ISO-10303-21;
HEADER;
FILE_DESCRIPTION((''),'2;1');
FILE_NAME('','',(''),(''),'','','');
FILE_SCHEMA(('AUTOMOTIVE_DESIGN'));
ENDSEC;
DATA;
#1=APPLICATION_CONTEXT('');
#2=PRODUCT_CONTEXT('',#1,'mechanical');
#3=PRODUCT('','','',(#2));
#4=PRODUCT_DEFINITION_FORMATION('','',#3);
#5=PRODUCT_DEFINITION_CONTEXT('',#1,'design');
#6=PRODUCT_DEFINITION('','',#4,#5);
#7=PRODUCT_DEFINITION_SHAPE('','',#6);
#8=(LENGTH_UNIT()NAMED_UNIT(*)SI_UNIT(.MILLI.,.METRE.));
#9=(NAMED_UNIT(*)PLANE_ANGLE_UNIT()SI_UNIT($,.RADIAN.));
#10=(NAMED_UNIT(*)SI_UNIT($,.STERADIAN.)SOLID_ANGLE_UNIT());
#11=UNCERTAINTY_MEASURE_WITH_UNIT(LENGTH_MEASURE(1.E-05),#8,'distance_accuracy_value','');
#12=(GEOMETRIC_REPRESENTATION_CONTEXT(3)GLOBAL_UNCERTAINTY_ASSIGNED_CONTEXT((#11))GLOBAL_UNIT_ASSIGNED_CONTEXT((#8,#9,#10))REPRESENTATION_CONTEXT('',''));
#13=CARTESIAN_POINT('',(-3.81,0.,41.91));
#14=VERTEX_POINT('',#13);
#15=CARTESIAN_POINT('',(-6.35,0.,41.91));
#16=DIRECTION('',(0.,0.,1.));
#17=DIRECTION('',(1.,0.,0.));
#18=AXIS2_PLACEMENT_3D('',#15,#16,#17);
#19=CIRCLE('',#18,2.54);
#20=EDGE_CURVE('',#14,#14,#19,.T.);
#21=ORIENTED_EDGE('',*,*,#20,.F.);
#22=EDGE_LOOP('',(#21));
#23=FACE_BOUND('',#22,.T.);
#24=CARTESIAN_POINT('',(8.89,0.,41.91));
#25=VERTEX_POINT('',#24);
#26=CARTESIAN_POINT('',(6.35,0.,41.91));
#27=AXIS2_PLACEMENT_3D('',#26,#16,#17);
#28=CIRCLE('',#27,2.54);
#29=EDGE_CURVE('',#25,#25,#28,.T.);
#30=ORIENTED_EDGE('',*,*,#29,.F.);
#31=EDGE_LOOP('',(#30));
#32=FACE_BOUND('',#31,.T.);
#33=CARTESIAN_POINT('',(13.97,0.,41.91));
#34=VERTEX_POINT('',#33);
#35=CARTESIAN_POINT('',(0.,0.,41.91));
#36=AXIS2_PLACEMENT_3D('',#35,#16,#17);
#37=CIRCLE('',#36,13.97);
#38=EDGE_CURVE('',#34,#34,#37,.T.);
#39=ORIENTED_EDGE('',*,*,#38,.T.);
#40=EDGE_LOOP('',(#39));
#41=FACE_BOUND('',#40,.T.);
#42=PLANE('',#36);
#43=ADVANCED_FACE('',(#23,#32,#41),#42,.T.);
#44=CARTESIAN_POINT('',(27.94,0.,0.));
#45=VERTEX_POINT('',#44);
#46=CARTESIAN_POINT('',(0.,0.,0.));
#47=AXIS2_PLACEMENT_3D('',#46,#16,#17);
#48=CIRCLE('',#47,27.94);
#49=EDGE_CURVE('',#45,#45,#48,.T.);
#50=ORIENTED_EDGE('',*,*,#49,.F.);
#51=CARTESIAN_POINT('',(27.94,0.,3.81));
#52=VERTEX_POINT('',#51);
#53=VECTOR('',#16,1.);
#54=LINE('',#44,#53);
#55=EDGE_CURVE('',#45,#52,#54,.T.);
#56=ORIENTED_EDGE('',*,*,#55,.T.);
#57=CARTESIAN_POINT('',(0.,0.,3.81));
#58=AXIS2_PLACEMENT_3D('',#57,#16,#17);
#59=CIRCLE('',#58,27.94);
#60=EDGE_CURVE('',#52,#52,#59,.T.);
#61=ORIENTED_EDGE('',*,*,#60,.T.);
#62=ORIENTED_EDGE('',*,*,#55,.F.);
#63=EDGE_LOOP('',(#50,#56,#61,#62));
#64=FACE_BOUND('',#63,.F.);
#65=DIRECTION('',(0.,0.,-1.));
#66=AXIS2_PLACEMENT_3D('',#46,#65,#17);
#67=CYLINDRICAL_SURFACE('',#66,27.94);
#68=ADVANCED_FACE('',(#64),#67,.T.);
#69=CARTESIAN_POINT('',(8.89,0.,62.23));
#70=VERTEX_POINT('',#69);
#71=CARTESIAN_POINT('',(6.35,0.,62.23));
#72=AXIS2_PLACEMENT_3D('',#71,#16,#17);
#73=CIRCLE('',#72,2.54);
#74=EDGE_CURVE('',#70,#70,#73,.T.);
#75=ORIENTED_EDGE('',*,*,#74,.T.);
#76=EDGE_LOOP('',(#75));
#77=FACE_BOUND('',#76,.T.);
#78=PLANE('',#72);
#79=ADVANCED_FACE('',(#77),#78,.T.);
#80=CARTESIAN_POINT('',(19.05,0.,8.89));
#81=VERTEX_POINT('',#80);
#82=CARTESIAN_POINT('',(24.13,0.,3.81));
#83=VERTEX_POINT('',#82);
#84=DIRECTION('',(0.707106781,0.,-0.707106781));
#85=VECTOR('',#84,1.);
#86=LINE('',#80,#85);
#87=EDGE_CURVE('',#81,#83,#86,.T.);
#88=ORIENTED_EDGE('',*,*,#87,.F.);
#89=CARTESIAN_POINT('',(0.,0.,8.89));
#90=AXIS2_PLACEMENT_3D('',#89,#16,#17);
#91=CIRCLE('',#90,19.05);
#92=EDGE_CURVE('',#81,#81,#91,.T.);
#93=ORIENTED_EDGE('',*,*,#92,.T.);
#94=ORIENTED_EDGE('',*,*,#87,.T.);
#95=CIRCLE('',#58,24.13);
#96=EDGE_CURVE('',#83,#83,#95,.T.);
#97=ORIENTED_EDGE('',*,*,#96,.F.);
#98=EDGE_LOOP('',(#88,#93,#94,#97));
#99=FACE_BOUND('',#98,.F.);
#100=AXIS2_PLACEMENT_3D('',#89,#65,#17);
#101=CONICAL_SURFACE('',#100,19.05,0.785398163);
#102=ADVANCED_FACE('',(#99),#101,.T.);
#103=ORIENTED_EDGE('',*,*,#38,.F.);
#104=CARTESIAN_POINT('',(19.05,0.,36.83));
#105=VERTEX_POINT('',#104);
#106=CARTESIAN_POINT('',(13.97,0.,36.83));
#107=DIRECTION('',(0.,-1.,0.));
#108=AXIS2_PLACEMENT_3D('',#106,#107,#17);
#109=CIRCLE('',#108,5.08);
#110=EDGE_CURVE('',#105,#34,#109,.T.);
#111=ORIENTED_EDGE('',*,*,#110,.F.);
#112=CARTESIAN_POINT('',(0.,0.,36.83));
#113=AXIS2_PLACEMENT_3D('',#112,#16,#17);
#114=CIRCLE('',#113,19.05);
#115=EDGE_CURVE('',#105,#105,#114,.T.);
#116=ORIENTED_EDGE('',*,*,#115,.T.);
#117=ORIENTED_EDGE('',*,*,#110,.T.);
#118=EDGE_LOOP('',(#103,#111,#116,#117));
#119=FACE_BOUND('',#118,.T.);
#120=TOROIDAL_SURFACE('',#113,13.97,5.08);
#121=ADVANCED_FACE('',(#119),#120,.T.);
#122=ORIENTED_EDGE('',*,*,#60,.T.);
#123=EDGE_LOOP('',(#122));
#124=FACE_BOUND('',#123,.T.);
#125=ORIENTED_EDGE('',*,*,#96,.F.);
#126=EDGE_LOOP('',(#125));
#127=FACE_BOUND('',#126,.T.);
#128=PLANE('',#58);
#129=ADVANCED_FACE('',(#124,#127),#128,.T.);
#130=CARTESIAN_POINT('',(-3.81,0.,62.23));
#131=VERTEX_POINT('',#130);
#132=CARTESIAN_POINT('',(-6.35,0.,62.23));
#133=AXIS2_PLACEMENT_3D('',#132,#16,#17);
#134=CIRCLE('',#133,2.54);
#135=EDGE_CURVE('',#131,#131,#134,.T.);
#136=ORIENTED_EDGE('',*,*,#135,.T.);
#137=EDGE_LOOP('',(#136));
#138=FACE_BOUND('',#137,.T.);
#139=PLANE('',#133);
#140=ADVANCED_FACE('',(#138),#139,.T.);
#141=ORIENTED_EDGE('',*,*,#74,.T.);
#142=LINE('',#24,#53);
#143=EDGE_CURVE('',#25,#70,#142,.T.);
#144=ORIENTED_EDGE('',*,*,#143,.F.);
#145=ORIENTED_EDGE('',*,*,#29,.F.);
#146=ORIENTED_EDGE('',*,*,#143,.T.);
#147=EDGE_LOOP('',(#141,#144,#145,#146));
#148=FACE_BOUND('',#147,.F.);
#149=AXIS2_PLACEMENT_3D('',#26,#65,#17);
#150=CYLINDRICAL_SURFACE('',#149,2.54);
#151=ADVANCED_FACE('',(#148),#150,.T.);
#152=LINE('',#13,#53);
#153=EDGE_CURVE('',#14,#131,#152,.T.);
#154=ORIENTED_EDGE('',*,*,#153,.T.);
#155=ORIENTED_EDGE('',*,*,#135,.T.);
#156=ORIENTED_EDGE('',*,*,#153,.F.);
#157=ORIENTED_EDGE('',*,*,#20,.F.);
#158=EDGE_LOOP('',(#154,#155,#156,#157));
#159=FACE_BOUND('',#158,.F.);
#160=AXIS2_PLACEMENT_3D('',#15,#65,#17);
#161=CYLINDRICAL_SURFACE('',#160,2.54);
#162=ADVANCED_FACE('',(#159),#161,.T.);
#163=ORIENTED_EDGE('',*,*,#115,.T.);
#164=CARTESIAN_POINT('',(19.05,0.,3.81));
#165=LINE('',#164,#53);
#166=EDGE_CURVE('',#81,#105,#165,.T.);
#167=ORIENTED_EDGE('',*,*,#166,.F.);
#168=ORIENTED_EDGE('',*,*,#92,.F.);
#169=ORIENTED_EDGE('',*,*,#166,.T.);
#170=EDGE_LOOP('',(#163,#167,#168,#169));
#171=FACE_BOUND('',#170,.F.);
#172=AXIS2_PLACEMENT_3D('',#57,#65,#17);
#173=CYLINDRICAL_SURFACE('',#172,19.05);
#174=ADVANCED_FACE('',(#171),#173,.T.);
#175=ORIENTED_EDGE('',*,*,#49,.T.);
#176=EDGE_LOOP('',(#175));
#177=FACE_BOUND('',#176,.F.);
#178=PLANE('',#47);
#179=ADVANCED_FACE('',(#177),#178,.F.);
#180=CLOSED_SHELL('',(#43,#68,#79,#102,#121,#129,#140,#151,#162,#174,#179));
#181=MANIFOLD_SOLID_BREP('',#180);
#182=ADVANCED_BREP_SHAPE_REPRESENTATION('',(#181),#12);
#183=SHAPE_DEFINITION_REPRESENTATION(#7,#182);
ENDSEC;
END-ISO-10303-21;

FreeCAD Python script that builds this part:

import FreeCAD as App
import Part
import Sketcher

V = App.Vector
Q = App.Units.Quantity


def edges_at(feature, points):
    """Names of the edges that pass closest to the given points."""
    edges = feature.Shape.Edges
    near = lambda p: min(range(len(edges)), key=lambda i: edges[i].distToShape(Part.Vertex(*p))[0])
    return sorted({f"Edge{near(p) + 1}" for p in points})

doc = App.newDocument("Part")
body = doc.addObject("PartDesign::Body", "Body")

sketch1 = body.newObject("Sketcher::SketchObject", "Sketch")
sketch1.AttachmentSupport = (doc.getObject("XY_Plane"), [""])
sketch1.MapMode = "FlatFace"
sketch1.addGeometry(Part.Circle(V(0, 0, 0), V(0, 0, 1), 28), False)
sketch1.addConstraint(Sketcher.Constraint("Coincident", 0, 3, -1, 1))
sketch1.addConstraint(Sketcher.Constraint("Diameter", 0, Q("2.2 in")))
pad1 = body.newObject("PartDesign::Pad", "Pad")
pad1.Profile = sketch1
pad1.Length = Q("0.15 in")

sketch2 = body.newObject("Sketcher::SketchObject", "Sketch001")
sketch2.AttachmentSupport = (doc.getObject("XY_Plane"), [""])
sketch2.MapMode = "FlatFace"
sketch2.AttachmentOffset = App.Placement(V(0, 0, 0.15 * 25.4), App.Rotation())
sketch2.addGeometry(Part.Circle(V(0, 0, 0), V(0, 0, 1), 19), False)
sketch2.addConstraint(Sketcher.Constraint("Coincident", 0, 3, -1, 1))
sketch2.addConstraint(Sketcher.Constraint("Diameter", 0, Q("1.5 in")))
pad2 = body.newObject("PartDesign::Pad", "Pad001")
pad2.Profile = sketch2
pad2.Length = Q("1.5 in")
doc.recompute()

fillet = body.newObject("PartDesign::Fillet", "Fillet")
fillet.Base = (pad2, edges_at(pad2, [(-19.05, 0, 41.91)]))
fillet.Radius = Q("0.2 in")
doc.recompute()

chamfer = body.newObject("PartDesign::Chamfer", "Chamfer")
chamfer.Base = (fillet, edges_at(fillet, [(19.05, 0, 20.32), (-19.05, 0, 36.83), (-19.05, 0, 3.81)]))
chamfer.Size = Q("0.2 in")

sketch3 = body.newObject("Sketcher::SketchObject", "Sketch002")
sketch3.AttachmentSupport = (doc.getObject("XY_Plane"), [""])
sketch3.MapMode = "FlatFace"
sketch3.AttachmentOffset = App.Placement(V(0, 0, 1.65 * 25.4), App.Rotation())
sketch3.addGeometry(Part.Circle(V(-6.3, 0, 0), V(0, 0, 1), 2.5), False)
sketch3.addGeometry(Part.Circle(V(6.3, 0, 0), V(0, 0, 1), 2.5), False)
sketch3.addConstraint(Sketcher.Constraint("Equal", 0, 1))
sketch3.addConstraint(Sketcher.Constraint("Symmetric", 0, 3, 1, 3, -1, 1))
sketch3.addConstraint(Sketcher.Constraint("PointOnObject", 0, 3, -1))
sketch3.addConstraint(Sketcher.Constraint("Diameter", 0, Q("0.2 in")))
sketch3.addConstraint(Sketcher.Constraint("DistanceX", 0, 3, 1, 3, Q("0.5 in")))
pad3 = body.newObject("PartDesign::Pad", "Pad002")
pad3.Profile = sketch3
pad3.Length = Q("0.8 in")

doc.recompute()
